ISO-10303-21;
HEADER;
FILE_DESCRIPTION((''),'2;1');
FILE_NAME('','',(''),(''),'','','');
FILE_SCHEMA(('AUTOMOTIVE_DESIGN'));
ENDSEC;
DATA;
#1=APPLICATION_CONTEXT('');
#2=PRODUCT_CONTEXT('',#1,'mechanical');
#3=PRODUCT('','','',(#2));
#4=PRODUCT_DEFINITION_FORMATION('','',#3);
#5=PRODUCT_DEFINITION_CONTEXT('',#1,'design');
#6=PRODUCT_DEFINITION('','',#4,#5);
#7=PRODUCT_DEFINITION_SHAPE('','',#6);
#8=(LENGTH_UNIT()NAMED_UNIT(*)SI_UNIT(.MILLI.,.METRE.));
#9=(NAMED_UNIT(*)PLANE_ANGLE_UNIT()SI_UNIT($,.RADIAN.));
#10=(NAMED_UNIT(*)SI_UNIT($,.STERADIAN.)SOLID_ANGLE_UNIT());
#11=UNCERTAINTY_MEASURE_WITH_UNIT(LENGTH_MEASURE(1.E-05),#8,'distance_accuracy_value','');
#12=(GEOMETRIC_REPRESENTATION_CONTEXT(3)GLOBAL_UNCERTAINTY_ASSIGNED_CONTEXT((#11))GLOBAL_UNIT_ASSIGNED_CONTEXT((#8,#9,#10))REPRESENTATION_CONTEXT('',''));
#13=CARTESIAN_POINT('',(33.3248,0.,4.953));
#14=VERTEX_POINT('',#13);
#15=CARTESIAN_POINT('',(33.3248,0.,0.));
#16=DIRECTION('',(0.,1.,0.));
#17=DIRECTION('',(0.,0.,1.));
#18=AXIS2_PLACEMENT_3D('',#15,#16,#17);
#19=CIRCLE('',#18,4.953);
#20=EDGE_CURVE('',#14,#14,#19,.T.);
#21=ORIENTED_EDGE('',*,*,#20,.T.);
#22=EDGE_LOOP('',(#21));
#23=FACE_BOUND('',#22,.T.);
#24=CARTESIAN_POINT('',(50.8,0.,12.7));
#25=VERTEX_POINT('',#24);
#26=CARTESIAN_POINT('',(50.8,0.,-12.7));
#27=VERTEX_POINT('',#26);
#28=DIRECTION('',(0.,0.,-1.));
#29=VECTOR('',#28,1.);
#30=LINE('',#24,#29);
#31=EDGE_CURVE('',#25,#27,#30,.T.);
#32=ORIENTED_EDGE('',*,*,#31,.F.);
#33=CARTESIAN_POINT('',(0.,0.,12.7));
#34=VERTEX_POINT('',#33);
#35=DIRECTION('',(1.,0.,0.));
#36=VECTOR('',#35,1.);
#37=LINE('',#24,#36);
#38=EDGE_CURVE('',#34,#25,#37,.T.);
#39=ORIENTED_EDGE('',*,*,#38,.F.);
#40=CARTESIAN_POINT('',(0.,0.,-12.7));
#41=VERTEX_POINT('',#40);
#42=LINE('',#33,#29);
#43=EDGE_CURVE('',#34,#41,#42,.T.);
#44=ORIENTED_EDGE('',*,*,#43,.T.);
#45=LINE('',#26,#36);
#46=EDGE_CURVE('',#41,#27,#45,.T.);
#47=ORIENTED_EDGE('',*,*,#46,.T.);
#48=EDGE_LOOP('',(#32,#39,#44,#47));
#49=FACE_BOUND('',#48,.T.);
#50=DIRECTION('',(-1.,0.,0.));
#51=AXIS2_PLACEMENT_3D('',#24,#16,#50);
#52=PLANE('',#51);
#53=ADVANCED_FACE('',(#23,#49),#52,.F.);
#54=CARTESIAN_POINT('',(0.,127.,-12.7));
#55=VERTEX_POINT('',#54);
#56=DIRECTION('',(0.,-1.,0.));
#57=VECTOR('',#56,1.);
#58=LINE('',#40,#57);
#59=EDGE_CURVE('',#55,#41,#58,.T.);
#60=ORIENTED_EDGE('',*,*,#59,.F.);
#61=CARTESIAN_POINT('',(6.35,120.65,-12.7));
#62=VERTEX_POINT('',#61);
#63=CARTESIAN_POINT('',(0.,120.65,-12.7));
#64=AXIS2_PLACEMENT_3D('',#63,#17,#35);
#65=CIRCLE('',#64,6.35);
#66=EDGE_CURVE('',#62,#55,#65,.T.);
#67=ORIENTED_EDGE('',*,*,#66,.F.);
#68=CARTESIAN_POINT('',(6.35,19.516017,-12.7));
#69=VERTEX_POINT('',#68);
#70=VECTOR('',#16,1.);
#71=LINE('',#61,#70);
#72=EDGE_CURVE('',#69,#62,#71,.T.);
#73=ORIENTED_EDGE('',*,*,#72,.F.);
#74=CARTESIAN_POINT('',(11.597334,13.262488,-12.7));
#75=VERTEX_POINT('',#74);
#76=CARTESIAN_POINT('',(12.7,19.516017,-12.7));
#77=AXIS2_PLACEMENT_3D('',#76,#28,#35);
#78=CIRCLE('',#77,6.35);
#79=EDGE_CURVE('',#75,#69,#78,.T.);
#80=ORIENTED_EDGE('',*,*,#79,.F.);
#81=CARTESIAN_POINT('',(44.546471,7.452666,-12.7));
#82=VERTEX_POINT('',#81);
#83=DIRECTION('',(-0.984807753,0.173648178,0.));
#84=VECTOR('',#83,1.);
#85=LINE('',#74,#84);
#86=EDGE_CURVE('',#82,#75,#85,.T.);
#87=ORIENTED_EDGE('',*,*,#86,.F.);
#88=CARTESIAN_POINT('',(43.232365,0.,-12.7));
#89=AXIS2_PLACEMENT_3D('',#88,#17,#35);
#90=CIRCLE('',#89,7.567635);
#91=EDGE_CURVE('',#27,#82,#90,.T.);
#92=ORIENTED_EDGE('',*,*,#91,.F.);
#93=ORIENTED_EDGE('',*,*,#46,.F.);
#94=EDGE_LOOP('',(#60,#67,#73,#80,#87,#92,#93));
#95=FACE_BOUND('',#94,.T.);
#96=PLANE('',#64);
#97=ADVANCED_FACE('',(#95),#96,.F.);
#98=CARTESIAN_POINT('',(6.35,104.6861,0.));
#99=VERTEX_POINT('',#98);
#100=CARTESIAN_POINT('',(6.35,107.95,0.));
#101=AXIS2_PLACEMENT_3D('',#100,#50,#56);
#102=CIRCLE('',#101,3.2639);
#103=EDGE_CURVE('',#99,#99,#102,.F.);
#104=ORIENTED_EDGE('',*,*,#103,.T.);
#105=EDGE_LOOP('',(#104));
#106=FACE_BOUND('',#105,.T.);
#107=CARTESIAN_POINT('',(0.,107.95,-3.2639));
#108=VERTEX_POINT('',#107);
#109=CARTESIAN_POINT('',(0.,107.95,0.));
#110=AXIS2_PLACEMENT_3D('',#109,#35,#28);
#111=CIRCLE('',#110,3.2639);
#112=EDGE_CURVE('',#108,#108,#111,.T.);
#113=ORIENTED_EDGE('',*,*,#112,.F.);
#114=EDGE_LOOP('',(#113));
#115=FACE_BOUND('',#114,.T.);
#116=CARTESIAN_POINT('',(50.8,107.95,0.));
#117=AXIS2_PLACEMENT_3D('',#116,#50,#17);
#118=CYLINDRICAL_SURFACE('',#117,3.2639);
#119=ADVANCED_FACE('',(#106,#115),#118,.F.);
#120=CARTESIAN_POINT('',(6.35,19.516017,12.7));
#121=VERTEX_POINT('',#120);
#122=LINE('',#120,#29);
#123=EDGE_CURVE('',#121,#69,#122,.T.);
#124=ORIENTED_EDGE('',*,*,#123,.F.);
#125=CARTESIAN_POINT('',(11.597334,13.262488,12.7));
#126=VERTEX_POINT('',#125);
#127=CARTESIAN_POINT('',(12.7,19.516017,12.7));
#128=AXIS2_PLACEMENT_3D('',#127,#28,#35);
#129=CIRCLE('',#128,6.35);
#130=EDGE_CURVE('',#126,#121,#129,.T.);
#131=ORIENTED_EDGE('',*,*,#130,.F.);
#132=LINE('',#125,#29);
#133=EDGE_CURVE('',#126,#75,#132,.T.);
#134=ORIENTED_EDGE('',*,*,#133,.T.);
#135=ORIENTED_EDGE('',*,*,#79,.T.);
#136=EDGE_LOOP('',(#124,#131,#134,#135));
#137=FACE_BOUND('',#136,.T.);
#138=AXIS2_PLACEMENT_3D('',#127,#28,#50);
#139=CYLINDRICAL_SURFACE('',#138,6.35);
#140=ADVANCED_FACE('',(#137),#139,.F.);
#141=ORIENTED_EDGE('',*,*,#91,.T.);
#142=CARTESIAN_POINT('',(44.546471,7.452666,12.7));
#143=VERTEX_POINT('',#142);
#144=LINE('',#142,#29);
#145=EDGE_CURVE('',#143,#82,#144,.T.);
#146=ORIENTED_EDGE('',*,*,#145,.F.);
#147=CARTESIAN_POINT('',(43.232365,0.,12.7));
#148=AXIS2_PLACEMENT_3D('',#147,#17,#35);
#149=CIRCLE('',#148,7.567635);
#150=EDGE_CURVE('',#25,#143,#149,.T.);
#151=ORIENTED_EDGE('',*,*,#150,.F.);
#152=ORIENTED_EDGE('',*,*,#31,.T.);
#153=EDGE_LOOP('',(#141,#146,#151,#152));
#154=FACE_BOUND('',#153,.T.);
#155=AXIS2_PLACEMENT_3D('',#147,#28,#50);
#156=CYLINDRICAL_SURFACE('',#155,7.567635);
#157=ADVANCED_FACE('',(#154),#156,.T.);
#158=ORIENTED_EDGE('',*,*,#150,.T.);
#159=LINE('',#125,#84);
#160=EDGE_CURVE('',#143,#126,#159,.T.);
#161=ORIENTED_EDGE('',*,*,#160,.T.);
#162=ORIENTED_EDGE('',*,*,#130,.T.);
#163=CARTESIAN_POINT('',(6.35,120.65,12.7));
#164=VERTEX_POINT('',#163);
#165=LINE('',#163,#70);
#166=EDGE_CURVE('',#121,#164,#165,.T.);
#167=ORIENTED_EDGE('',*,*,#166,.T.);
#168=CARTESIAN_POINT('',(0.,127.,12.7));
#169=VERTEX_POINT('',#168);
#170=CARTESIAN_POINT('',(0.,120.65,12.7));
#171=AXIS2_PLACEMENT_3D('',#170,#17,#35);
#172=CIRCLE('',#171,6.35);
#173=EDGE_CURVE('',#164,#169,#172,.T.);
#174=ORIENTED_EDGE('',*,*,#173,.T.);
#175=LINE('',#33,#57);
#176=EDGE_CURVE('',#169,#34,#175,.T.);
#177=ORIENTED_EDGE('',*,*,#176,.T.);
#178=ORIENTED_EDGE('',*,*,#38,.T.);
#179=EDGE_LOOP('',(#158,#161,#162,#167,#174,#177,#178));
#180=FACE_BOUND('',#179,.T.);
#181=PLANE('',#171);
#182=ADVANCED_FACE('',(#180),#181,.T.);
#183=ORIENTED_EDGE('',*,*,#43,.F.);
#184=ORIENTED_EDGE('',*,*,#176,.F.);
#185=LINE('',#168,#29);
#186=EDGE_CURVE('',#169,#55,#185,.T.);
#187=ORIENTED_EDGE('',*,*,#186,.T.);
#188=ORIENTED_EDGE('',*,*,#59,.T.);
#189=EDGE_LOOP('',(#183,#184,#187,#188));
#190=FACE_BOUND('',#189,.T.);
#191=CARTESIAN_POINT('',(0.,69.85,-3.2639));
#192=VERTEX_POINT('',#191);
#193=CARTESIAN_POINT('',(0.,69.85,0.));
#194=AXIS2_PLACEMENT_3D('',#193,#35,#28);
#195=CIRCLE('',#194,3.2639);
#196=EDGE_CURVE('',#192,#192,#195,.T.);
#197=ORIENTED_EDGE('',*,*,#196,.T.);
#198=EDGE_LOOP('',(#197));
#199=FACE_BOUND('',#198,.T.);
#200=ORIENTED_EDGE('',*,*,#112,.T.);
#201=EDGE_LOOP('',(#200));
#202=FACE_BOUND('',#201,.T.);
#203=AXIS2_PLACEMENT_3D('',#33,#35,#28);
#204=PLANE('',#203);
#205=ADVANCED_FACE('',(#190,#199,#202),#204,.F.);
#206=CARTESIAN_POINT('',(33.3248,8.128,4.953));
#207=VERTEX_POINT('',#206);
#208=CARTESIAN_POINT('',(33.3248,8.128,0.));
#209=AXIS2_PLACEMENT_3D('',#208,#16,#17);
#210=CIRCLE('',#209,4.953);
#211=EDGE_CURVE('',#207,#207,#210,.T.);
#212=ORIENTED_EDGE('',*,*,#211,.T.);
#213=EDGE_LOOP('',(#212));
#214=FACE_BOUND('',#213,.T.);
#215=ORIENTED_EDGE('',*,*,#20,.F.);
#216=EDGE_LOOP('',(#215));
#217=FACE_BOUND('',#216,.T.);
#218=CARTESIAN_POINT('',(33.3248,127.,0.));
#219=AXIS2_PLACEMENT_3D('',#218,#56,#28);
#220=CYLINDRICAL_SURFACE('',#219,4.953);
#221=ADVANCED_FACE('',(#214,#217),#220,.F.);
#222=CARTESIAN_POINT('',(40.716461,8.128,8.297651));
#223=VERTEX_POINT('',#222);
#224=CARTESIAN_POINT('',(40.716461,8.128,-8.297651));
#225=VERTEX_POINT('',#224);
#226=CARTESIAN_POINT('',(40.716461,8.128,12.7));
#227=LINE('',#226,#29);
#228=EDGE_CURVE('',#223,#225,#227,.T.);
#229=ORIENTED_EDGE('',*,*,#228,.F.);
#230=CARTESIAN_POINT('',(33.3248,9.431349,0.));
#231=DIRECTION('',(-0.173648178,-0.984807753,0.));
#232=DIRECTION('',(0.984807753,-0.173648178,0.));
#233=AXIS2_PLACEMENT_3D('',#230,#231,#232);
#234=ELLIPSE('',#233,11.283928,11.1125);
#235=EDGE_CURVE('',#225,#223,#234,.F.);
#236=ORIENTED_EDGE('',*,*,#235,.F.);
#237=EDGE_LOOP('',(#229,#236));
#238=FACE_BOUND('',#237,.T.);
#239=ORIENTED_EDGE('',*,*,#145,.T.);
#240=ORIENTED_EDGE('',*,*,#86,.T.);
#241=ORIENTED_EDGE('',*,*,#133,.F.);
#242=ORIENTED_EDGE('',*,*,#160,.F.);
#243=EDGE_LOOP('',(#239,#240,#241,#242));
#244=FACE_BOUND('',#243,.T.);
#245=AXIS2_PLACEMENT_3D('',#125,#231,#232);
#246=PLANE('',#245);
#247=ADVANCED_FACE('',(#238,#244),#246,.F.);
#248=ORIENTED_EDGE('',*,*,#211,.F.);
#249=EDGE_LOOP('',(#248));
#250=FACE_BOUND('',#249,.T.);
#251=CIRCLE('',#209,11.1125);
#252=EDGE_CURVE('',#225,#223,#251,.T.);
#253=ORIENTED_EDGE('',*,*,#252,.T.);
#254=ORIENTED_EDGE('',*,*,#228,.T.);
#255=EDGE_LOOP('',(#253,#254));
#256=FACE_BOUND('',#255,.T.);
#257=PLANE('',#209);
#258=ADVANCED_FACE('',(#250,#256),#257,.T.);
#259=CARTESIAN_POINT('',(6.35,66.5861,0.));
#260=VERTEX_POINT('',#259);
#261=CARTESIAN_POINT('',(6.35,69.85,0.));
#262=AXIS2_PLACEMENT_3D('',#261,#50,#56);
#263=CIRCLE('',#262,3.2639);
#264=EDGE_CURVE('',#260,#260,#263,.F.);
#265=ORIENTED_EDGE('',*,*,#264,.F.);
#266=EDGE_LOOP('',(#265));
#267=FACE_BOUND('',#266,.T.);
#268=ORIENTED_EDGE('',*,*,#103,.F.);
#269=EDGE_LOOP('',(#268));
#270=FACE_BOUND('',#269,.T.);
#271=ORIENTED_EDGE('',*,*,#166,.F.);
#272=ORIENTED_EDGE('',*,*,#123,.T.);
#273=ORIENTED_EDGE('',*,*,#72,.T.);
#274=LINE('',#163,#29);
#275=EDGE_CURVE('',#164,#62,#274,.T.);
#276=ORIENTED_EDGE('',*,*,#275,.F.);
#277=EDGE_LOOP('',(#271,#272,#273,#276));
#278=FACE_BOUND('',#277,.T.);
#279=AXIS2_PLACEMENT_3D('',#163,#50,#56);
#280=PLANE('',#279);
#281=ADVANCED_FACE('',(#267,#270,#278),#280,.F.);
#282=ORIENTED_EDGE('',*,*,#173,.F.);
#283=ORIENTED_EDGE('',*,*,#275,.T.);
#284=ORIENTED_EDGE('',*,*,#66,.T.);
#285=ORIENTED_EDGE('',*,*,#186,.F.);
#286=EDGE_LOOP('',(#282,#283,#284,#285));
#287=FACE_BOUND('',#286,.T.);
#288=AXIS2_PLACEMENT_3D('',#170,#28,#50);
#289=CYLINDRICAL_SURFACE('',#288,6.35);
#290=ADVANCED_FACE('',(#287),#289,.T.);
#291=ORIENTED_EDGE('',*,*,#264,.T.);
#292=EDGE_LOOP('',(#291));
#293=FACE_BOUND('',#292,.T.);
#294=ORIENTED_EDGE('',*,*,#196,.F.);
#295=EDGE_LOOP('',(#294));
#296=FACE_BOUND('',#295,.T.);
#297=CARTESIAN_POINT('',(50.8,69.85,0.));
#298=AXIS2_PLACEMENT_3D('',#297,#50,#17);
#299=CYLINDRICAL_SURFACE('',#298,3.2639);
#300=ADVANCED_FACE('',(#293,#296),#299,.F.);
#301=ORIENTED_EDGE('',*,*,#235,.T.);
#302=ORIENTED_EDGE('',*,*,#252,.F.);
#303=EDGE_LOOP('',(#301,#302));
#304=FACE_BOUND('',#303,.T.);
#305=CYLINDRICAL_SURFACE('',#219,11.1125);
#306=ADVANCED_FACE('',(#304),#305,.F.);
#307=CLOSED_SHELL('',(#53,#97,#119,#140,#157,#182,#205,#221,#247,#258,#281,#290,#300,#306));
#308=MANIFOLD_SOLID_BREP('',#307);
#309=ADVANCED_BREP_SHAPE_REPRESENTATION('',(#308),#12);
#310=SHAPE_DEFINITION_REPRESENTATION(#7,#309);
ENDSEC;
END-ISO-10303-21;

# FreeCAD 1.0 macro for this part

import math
import FreeCAD as App
import Part
import Sketcher
Q = App.Units.Quantity

doc = App.newDocument("Part")
body = doc.addObject("PartDesign::Body", "Body")

# Sketch on XY plane
sketch1 = body.newObject("Sketcher::SketchObject", "Sketch")
sketch1.AttachmentSupport = (doc.getObject("XY_Plane"), [""])
sketch1.MapMode = "FlatFace"
sketch1.addGeometry([
    Part.LineSegment(App.Vector(0, 127, 0), App.Vector(0, 0, 0)),  # 0
    Part.LineSegment(App.Vector(0, 0, 0), App.Vector(50.8, 0, 0)),  # 1
    Part.ArcOfCircle(Part.Circle(App.Vector(43.232365, 0, 0), App.Vector(0, 0, 1), 7.567635), math.radians(0), math.radians(80)),  # 2
    Part.LineSegment(App.Vector(44.546471, 7.452666, 0), App.Vector(11.597334, 13.262488, 0)),  # 3
    Part.ArcOfCircle(Part.Circle(App.Vector(12.7, 19.516017, 0), App.Vector(0, 0, 1), 6.35), math.radians(180), math.radians(260)),  # 4
    Part.LineSegment(App.Vector(6.35, 19.516017, 0), App.Vector(6.35, 120.65, 0)),  # 5
    Part.ArcOfCircle(Part.Circle(App.Vector(0, 120.65, 0), App.Vector(0, 0, 1), 6.35), math.radians(0), math.radians(90)),  # 6
], False)
sketch1.addConstraint([
    Sketcher.Constraint("Coincident", 0, 2, 1, 1),
    Sketcher.Constraint("Coincident", 1, 2, 2, 1),
    Sketcher.Constraint("Tangent", 2, 2, 3, 1),
    Sketcher.Constraint("Tangent", 3, 2, 4, 2),
    Sketcher.Constraint("Tangent", 4, 1, 5, 1),
    Sketcher.Constraint("Tangent", 5, 2, 6, 1),
    Sketcher.Constraint("Coincident", 6, 2, 0, 1),
    Sketcher.Constraint("Vertical", 0),
    Sketcher.Constraint("Horizontal", 1),
    Sketcher.Constraint("Vertical", 5),
    Sketcher.Constraint("Coincident", 0, 2, -1, 1),
    Sketcher.Constraint("Equal", 4, 6),
    Sketcher.Constraint("PointOnObject", 2, 3, -1),
    Sketcher.Constraint("PointOnObject", 6, 3, -2),
    Sketcher.Constraint("DistanceX", 1, 1, 1, 2, Q("2 in")),
    Sketcher.Constraint("DistanceY", 0, 2, 0, 1, Q("5 in")),
    Sketcher.Constraint("Radius", 4, Q("0.25 in")),
    Sketcher.Constraint("Angle", 3, Q("170 deg")),
    Sketcher.Constraint("Radius", 2, 7.567635),
])
pad1 = body.newObject("PartDesign::Pad", "Pad")
pad1.Profile = sketch1
pad1.Length = Q("1 in")
pad1.Midplane = True

# Sketch on XZ plane
sketch2 = body.newObject("Sketcher::SketchObject", "Sketch001")
sketch2.AttachmentSupport = (doc.getObject("XZ_Plane"), [""])
sketch2.MapMode = "FlatFace"
sketch2.addGeometry(Part.Circle(App.Vector(33.3248, 0, 0), App.Vector(0, 0, 1), 4.953), False)
sketch2.addConstraint([
    Sketcher.Constraint("PointOnObject", 0, 3, -1),
    Sketcher.Constraint("Diameter", 0, Q("0.39 in")),
    Sketcher.Constraint("DistanceX", -1, 1, 0, 3, Q("1.312 in")),
])
pocket1 = body.newObject("PartDesign::Pocket", "Pocket")
pocket1.Profile = sketch2
pocket1.Type = "ThroughAll"

# Sketch on XZ plane
sketch3 = body.newObject("Sketcher::SketchObject", "Sketch002")
sketch3.AttachmentSupport = (doc.getObject("XZ_Plane"), [""])
sketch3.MapMode = "FlatFace"
sketch3.AttachmentOffset = App.Placement(App.Vector(0, 0, -0.32 * 25.4), App.Rotation())
sketch3.addGeometry(Part.Circle(App.Vector(33.3248, 0, 0), App.Vector(0, 0, 1), 11.1125), False)
sketch3.addConstraint([
    Sketcher.Constraint("PointOnObject", 0, 3, -1),
    Sketcher.Constraint("Diameter", 0, Q("0.875 in")),
    Sketcher.Constraint("DistanceX", -1, 1, 0, 3, Q("1.312 in")),
])
pocket2 = body.newObject("PartDesign::Pocket", "Pocket001")
pocket2.Profile = sketch3
pocket2.Type = "ThroughAll"

# Sketch on YZ plane
sketch4 = body.newObject("Sketcher::SketchObject", "Sketch003")
sketch4.AttachmentSupport = (doc.getObject("YZ_Plane"), [""])
sketch4.MapMode = "FlatFace"
sketch4.addGeometry([
    Part.Circle(App.Vector(69.85, 0, 0), App.Vector(0, 0, 1), 3.2639),
    Part.Circle(App.Vector(107.95, 0, 0), App.Vector(0, 0, 1), 3.2639),
], False)
sketch4.addConstraint([
    Sketcher.Constraint("Equal", 0, 1),
    Sketcher.Constraint("PointOnObject", 0, 3, -1),
    Sketcher.Constraint("PointOnObject", 1, 3, -1),
    Sketcher.Constraint("Diameter", 0, Q("0.257 in")),
    Sketcher.Constraint("DistanceX", 0, 3, 1, 3, Q("1.5 in")),
    Sketcher.Constraint("DistanceX", -1, 1, 0, 3, Q("2.75 in")),
])
pocket3 = body.newObject("PartDesign::Pocket", "Pocket002")
pocket3.Profile = sketch4
pocket3.Type = "ThroughAll"
pocket3.Reversed = True

doc.recompute()
